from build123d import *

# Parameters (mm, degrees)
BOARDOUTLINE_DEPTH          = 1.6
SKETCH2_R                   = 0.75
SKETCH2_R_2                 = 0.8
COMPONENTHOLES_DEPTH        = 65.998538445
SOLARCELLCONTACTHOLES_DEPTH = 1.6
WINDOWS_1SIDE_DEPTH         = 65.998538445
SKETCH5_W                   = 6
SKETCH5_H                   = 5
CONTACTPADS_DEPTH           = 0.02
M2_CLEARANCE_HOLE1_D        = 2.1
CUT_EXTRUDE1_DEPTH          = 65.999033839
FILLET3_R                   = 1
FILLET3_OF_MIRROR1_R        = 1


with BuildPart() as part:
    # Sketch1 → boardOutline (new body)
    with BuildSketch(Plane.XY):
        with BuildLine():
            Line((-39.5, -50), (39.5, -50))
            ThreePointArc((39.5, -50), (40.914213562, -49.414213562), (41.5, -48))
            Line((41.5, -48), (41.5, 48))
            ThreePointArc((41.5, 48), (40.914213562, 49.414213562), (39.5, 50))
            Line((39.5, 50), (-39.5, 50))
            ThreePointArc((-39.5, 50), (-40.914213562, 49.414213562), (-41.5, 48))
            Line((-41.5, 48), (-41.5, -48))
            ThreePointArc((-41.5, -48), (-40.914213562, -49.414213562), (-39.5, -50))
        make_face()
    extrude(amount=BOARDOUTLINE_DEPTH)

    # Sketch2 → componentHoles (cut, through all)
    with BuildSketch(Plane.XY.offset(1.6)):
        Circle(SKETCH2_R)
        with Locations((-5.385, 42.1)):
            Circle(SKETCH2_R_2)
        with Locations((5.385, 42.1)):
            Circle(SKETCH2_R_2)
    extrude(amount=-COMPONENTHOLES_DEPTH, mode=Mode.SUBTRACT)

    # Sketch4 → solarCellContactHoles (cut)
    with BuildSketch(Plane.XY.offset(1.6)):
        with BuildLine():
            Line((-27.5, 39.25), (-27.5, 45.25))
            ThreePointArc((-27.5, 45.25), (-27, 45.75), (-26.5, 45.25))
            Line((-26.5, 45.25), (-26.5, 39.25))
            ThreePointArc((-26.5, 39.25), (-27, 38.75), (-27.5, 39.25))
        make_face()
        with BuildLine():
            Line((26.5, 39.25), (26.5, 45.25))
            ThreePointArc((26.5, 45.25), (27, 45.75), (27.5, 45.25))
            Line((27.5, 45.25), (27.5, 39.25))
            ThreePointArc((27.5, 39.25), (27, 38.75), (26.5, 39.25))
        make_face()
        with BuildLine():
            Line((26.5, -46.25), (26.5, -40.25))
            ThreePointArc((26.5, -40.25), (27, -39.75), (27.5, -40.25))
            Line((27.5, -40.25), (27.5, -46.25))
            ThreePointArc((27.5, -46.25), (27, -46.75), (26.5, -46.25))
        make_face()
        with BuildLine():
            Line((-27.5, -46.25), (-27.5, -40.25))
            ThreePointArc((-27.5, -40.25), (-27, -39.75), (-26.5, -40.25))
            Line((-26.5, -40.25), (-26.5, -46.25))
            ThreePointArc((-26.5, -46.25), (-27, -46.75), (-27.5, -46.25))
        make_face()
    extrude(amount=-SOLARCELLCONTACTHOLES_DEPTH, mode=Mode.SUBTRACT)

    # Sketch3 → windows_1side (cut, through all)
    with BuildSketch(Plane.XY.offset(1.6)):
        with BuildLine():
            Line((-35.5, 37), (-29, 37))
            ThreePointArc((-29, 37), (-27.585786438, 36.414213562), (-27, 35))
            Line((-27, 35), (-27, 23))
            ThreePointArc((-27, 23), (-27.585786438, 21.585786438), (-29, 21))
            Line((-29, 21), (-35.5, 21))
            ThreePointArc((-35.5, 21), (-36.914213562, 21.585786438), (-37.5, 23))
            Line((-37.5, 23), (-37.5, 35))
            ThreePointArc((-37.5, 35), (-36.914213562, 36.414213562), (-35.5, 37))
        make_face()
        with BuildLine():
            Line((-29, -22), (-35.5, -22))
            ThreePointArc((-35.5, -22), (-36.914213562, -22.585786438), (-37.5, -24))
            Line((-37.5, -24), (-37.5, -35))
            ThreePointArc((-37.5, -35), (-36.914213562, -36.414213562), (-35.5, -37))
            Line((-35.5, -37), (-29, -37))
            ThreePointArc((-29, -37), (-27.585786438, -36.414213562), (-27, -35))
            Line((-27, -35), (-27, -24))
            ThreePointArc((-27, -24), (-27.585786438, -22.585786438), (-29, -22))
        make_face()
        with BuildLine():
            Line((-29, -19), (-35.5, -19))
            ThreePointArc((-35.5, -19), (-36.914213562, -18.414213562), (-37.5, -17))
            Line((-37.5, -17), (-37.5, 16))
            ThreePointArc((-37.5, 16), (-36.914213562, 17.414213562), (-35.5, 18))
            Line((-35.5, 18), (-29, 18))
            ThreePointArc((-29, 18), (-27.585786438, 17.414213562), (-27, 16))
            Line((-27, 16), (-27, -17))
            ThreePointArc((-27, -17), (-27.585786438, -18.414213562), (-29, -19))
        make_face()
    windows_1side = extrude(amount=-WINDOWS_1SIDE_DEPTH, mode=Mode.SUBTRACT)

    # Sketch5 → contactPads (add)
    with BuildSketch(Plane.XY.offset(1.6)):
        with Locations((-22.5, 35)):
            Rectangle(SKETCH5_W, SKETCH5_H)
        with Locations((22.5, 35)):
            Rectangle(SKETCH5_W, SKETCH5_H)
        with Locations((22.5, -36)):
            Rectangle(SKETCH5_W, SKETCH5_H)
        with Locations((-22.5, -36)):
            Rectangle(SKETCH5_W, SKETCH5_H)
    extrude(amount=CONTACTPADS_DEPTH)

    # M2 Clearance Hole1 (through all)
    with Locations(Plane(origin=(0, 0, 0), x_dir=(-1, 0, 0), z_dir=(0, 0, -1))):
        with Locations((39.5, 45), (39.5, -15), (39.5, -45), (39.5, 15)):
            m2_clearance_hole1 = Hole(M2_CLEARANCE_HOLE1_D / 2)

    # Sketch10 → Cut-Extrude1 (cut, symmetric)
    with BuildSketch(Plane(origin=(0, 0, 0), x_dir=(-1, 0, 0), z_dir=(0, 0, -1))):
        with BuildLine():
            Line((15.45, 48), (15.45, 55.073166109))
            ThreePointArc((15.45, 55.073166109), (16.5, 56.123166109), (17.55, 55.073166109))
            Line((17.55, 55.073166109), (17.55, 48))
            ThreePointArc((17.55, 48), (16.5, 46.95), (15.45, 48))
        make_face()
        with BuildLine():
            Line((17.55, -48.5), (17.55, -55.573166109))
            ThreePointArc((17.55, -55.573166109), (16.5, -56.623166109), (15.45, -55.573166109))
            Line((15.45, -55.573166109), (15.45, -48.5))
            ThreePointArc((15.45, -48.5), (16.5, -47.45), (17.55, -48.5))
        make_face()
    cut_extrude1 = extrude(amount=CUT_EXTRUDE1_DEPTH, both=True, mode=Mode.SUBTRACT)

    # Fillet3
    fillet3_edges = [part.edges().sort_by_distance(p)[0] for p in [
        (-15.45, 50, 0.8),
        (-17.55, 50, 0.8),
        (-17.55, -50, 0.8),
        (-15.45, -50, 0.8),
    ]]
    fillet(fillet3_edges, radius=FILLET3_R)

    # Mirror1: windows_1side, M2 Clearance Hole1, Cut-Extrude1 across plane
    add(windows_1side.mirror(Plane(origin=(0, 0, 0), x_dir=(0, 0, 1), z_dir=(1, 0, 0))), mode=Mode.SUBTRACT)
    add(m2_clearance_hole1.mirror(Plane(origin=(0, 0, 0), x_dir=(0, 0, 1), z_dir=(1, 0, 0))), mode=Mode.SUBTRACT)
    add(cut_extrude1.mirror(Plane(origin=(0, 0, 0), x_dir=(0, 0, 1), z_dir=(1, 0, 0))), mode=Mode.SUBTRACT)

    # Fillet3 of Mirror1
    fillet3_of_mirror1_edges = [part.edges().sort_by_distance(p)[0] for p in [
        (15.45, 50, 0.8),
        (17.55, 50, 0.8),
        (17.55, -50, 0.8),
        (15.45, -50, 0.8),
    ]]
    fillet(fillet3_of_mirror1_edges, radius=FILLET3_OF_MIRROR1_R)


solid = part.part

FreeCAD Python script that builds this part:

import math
import FreeCAD as App
import Part
import Sketcher
Q = App.Units.Quantity


def edges_at(feature, points):
    """Names of the edges that pass closest to the given points."""
    edges = feature.Shape.Edges
    near = lambda p: min(range(len(edges)), key=lambda i: edges[i].distToShape(Part.Vertex(*p))[0])
    return sorted({f"Edge{near(p) + 1}" for p in points})


def add_polygon(sketch, points):
    """Adds a closed chain of lines whose ends are joined by coincident constraints."""
    first, n = sketch.GeometryCount, len(points)
    for a, b in zip(points, points[1:] + points[:1]):
        sketch.addGeometry(Part.LineSegment(App.Vector(*a, 0), App.Vector(*b, 0)), False)
    for i in range(n):
        sketch.addConstraint(Sketcher.Constraint("Coincident", first + i, 2, first + (i + 1) % n, 1))

doc = App.newDocument("Part")
body = doc.addObject("PartDesign::Body", "Body")

sketch1 = doc.addObject("Sketcher::SketchObject", "Sketch")
body.addObject(sketch1)
sketch1.AttachmentSupport = (doc.XY_Plane, [""])
sketch1.MapMode = "FlatFace"
sketch1.addGeometry([
    Part.LineSegment(App.Vector(-39.5, -50, 0), App.Vector(39.5, -50, 0)),
    Part.ArcOfCircle(Part.Circle(App.Vector(39.5, -48, 0), App.Vector(0, 0, 1), 2), math.radians(-90), math.radians(0)),
    Part.LineSegment(App.Vector(41.5, -48, 0), App.Vector(41.5, 48, 0)),
    Part.ArcOfCircle(Part.Circle(App.Vector(39.5, 48, 0), App.Vector(0, 0, 1), 2), math.radians(0), math.radians(90)),
    Part.LineSegment(App.Vector(39.5, 50, 0), App.Vector(-39.5, 50, 0)),
    Part.ArcOfCircle(Part.Circle(App.Vector(-39.5, 48, 0), App.Vector(0, 0, 1), 2), math.radians(90), math.radians(180)),
    Part.LineSegment(App.Vector(-41.5, 48, 0), App.Vector(-41.5, -48, 0)),
    Part.ArcOfCircle(Part.Circle(App.Vector(-39.5, -48, 0), App.Vector(0, 0, 1), 2), math.radians(-180), math.radians(-90)),
], False)
sketch1.addConstraint([
    Sketcher.Constraint("Tangent", 0, 2, 1, 1),
    Sketcher.Constraint("Tangent", 1, 2, 2, 1),
    Sketcher.Constraint("Tangent", 2, 2, 3, 1),
    Sketcher.Constraint("Tangent", 3, 2, 4, 1),
    Sketcher.Constraint("Tangent", 4, 2, 5, 1),
    Sketcher.Constraint("Tangent", 5, 2, 6, 1),
    Sketcher.Constraint("Tangent", 6, 2, 7, 1),
    Sketcher.Constraint("Tangent", 7, 2, 0, 1),
    Sketcher.Constraint("Horizontal", 0),
    Sketcher.Constraint("Vertical", 2),
    Sketcher.Constraint("Horizontal", 4),
    Sketcher.Constraint("Vertical", 6),
    Sketcher.Constraint("Equal", 1, 3),
    Sketcher.Constraint("Equal", 3, 5),
    Sketcher.Constraint("Equal", 5, 7),
    Sketcher.Constraint("Symmetric", 1, 3, 5, 3, -1, 1),
    Sketcher.Constraint("Radius", 1, Q("2 mm")),
    Sketcher.Constraint("DistanceX", 0, 1, 0, 2, Q("79 mm")),
    Sketcher.Constraint("DistanceY", 2, 1, 2, 2, Q("96 mm")),
])
pad1 = doc.addObject("PartDesign::Pad", "Pad")
body.addObject(pad1)
pad1.Profile = sketch1
pad1.Length = 1.6

sketch2 = doc.addObject("Sketcher::SketchObject", "Sketch001")
body.addObject(sketch2)
sketch2.AttachmentSupport = (doc.XY_Plane, [""])
sketch2.MapMode = "FlatFace"
sketch2.AttachmentOffset = App.Placement(App.Vector(0, 0, 1.6), App.Rotation())
sketch2.addGeometry([
    Part.Circle(App.Vector(0, 0, 0), App.Vector(0, 0, 1), 0.75),
    Part.Circle(App.Vector(-5.385, 42.1, 0), App.Vector(0, 0, 1), 0.8),
    Part.Circle(App.Vector(5.385, 42.1, 0), App.Vector(0, 0, 1), 0.8),
], False)
sketch2.addConstraint([
    Sketcher.Constraint("Coincident", 0, 3, -1, 1),
    Sketcher.Constraint("Equal", 1, 2),
    Sketcher.Constraint("Symmetric", 1, 3, 2, 3, -2),
    Sketcher.Constraint("Diameter", 0, Q("1.5 mm")),
    Sketcher.Constraint("Diameter", 1, Q("1.6 mm")),
    Sketcher.Constraint("DistanceY", -1, 1, 1, 3, Q("42.1 mm")),
    Sketcher.Constraint("DistanceX", 1, 3, 2, 3, Q("10.77 mm")),
])
pocket1 = doc.addObject("PartDesign::Pocket", "Pocket")
body.addObject(pocket1)
pocket1.Profile = sketch2
pocket1.Type = "ThroughAll"

sketch3 = doc.addObject("Sketcher::SketchObject", "Sketch002")
body.addObject(sketch3)
sketch3.AttachmentSupport = (doc.XY_Plane, [""])
sketch3.MapMode = "FlatFace"
sketch3.AttachmentOffset = App.Placement(App.Vector(0, 0, 1.6), App.Rotation())
sketch3.addGeometry([
    Part.LineSegment(App.Vector(-27.5, 45.25, 0), App.Vector(-27.5, 39.25, 0)),
    Part.ArcOfCircle(Part.Circle(App.Vector(-27, 39.25, 0), App.Vector(0, 0, 1), 0.5), math.radians(180), math.radians(360)),
    Part.LineSegment(App.Vector(-26.5, 39.25, 0), App.Vector(-26.5, 45.25, 0)),
    Part.ArcOfCircle(Part.Circle(App.Vector(-27, 45.25, 0), App.Vector(0, 0, 1), 0.5), math.radians(0), math.radians(180)),
    Part.LineSegment(App.Vector(26.5, 45.25, 0), App.Vector(26.5, 39.25, 0)),
    Part.ArcOfCircle(Part.Circle(App.Vector(27, 39.25, 0), App.Vector(0, 0, 1), 0.5), math.radians(180), math.radians(360)),
    Part.LineSegment(App.Vector(27.5, 39.25, 0), App.Vector(27.5, 45.25, 0)),
    Part.ArcOfCircle(Part.Circle(App.Vector(27, 45.25, 0), App.Vector(0, 0, 1), 0.5), math.radians(0), math.radians(180)),
    Part.LineSegment(App.Vector(26.5, -40.25, 0), App.Vector(26.5, -46.25, 0)),
    Part.ArcOfCircle(Part.Circle(App.Vector(27, -46.25, 0), App.Vector(0, 0, 1), 0.5), math.radians(180), math.radians(360)),
    Part.LineSegment(App.Vector(27.5, -46.25, 0), App.Vector(27.5, -40.25, 0)),
    Part.ArcOfCircle(Part.Circle(App.Vector(27, -40.25, 0), App.Vector(0, 0, 1), 0.5), math.radians(0), math.radians(180)),
    Part.LineSegment(App.Vector(-27.5, -40.25, 0), App.Vector(-27.5, -46.25, 0)),
    Part.ArcOfCircle(Part.Circle(App.Vector(-27, -46.25, 0), App.Vector(0, 0, 1), 0.5), math.radians(180), math.radians(360)),
    Part.LineSegment(App.Vector(-26.5, -46.25, 0), App.Vector(-26.5, -40.25, 0)),
    Part.ArcOfCircle(Part.Circle(App.Vector(-27, -40.25, 0), App.Vector(0, 0, 1), 0.5), math.radians(0), math.radians(180)),
], False)
sketch3.addConstraint([
    Sketcher.Constraint("Tangent", 0, 2, 1, 1),
    Sketcher.Constraint("Tangent", 1, 2, 2, 1),
    Sketcher.Constraint("Tangent", 2, 2, 3, 1),
    Sketcher.Constraint("Tangent", 3, 2, 0, 1),
    Sketcher.Constraint("Tangent", 4, 2, 5, 1),
    Sketcher.Constraint("Tangent", 5, 2, 6, 1),
    Sketcher.Constraint("Tangent", 6, 2, 7, 1),
    Sketcher.Constraint("Tangent", 7, 2, 4, 1),
    Sketcher.Constraint("Tangent", 8, 2, 9, 1),
    Sketcher.Constraint("Tangent", 9, 2, 10, 1),
    Sketcher.Constraint("Tangent", 10, 2, 11, 1),
    Sketcher.Constraint("Tangent", 11, 2, 8, 1),
    Sketcher.Constraint("Tangent", 12, 2, 13, 1),
    Sketcher.Constraint("Tangent", 13, 2, 14, 1),
    Sketcher.Constraint("Tangent", 14, 2, 15, 1),
    Sketcher.Constraint("Tangent", 15, 2, 12, 1),
    Sketcher.Constraint("Vertical", 0),
    Sketcher.Constraint("Vertical", 2),
    Sketcher.Constraint("Vertical", 4),
    Sketcher.Constraint("Vertical", 6),
    Sketcher.Constraint("Vertical", 8),
    Sketcher.Constraint("Vertical", 10),
    Sketcher.Constraint("Vertical", 12),
    Sketcher.Constraint("Vertical", 14),
    Sketcher.Constraint("Equal", 3, 5),
    Sketcher.Constraint("Equal", 7, 9),
    Sketcher.Constraint("Equal", 11, 13),
    Sketcher.Constraint("Symmetric", 1, 3, 5, 3, -2),
    Sketcher.Constraint("Symmetric", 9, 3, 13, 3, -2),
    Sketcher.Constraint("Horizontal", 3, 3, 7, 3),
    Sketcher.Constraint("Horizontal", 11, 3, 15, 3),
    Sketcher.Constraint("Vertical", 7, 3, 9, 3),
    Sketcher.Constraint("Equal", 6, 8),
    Sketcher.Constraint("Radius", 1, Q("0.5 mm")),
    Sketcher.Constraint("DistanceY", 0, 2, 0, 1, Q("6 mm")),
    Sketcher.Constraint("DistanceX", 1, 3, -1, 1, Q("27 mm")),
    Sketcher.Constraint("DistanceY", 9, 3, 5, 3, Q("85.5 mm")),
    Sketcher.Constraint("DistanceY", -1, 1, 1, 3, Q("39.25 mm")),
])
pocket2 = doc.addObject("PartDesign::Pocket", "Pocket001")
body.addObject(pocket2)
pocket2.Profile = sketch3
pocket2.Length = 1.6

sketch4 = doc.addObject("Sketcher::SketchObject", "Sketch003")
body.addObject(sketch4)
sketch4.AttachmentSupport = (doc.XY_Plane, [""])
sketch4.MapMode = "FlatFace"
sketch4.AttachmentOffset = App.Placement(App.Vector(0, 0, 1.6), App.Rotation())
sketch4.addGeometry([
    Part.LineSegment(App.Vector(-29, 37, 0), App.Vector(-35.5, 37, 0)),
    Part.ArcOfCircle(Part.Circle(App.Vector(-35.5, 35, 0), App.Vector(0, 0, 1), 2), math.radians(90), math.radians(180)),
    Part.LineSegment(App.Vector(-37.5, 35, 0), App.Vector(-37.5, 23, 0)),
    Part.ArcOfCircle(Part.Circle(App.Vector(-35.5, 23, 0), App.Vector(0, 0, 1), 2), math.radians(-180), math.radians(-90)),
    Part.LineSegment(App.Vector(-35.5, 21, 0), App.Vector(-29, 21, 0)),
    Part.ArcOfCircle(Part.Circle(App.Vector(-29, 23, 0), App.Vector(0, 0, 1), 2), math.radians(-90), math.radians(0)),
    Part.LineSegment(App.Vector(-27, 23, 0), App.Vector(-27, 35, 0)),
    Part.ArcOfCircle(Part.Circle(App.Vector(-29, 35, 0), App.Vector(0, 0, 1), 2), math.radians(0), math.radians(90)),
    Part.LineSegment(App.Vector(-29, -22, 0), App.Vector(-35.5, -22, 0)),
    Part.ArcOfCircle(Part.Circle(App.Vector(-35.5, -24, 0), App.Vector(0, 0, 1), 2), math.radians(90), math.radians(180)),
    Part.LineSegment(App.Vector(-37.5, -24, 0), App.Vector(-37.5, -35, 0)),
    Part.ArcOfCircle(Part.Circle(App.Vector(-35.5, -35, 0), App.Vector(0, 0, 1), 2), math.radians(-180), math.radians(-90)),
    Part.LineSegment(App.Vector(-35.5, -37, 0), App.Vector(-29, -37, 0)),
    Part.ArcOfCircle(Part.Circle(App.Vector(-29, -35, 0), App.Vector(0, 0, 1), 2), math.radians(-90), math.radians(0)),
    Part.LineSegment(App.Vector(-27, -35, 0), App.Vector(-27, -24, 0)),
    Part.ArcOfCircle(Part.Circle(App.Vector(-29, -24, 0), App.Vector(0, 0, 1), 2), math.radians(0), math.radians(90)),
    Part.LineSegment(App.Vector(-35.5, -19, 0), App.Vector(-29, -19, 0)),
    Part.ArcOfCircle(Part.Circle(App.Vector(-29, -17, 0), App.Vector(0, 0, 1), 2), math.radians(-90), math.radians(0)),
    Part.LineSegment(App.Vector(-27, -17, 0), App.Vector(-27, 16, 0)),
    Part.ArcOfCircle(Part.Circle(App.Vector(-29, 16, 0), App.Vector(0, 0, 1), 2), math.radians(0), math.radians(90)),
    Part.LineSegment(App.Vector(-29, 18, 0), App.Vector(-35.5, 18, 0)),
    Part.ArcOfCircle(Part.Circle(App.Vector(-35.5, 16, 0), App.Vector(0, 0, 1), 2), math.radians(90), math.radians(180)),
    Part.LineSegment(App.Vector(-37.5, 16, 0), App.Vector(-37.5, -17, 0)),
    Part.ArcOfCircle(Part.Circle(App.Vector(-35.5, -17, 0), App.Vector(0, 0, 1), 2), math.radians(-180), math.radians(-90)),
], False)
sketch4.addConstraint([
    Sketcher.Constraint("Tangent", 0, 2, 1, 1),
    Sketcher.Constraint("Tangent", 1, 2, 2, 1),
    Sketcher.Constraint("Tangent", 2, 2, 3, 1),
    Sketcher.Constraint("Tangent", 3, 2, 4, 1),
    Sketcher.Constraint("Tangent", 4, 2, 5, 1),
    Sketcher.Constraint("Tangent", 5, 2, 6, 1),
    Sketcher.Constraint("Tangent", 6, 2, 7, 1),
    Sketcher.Constraint("Tangent", 7, 2, 0, 1),
    Sketcher.Constraint("Tangent", 8, 2, 9, 1),
    Sketcher.Constraint("Tangent", 9, 2, 10, 1),
    Sketcher.Constraint("Tangent", 10, 2, 11, 1),
    Sketcher.Constraint("Tangent", 11, 2, 12, 1),
    Sketcher.Constraint("Tangent", 12, 2, 13, 1),
    Sketcher.Constraint("Tangent", 13, 2, 14, 1),
    Sketcher.Constraint("Tangent", 14, 2, 15, 1),
    Sketcher.Constraint("Tangent", 15, 2, 8, 1),
    Sketcher.Constraint("Tangent", 16, 2, 17, 1),
    Sketcher.Constraint("Tangent", 17, 2, 18, 1),
    Sketcher.Constraint("Tangent", 18, 2, 19, 1),
    Sketcher.Constraint("Tangent", 19, 2, 20, 1),
    Sketcher.Constraint("Tangent", 20, 2, 21, 1),
    Sketcher.Constraint("Tangent", 21, 2, 22, 1),
    Sketcher.Constraint("Tangent", 22, 2, 23, 1),
    Sketcher.Constraint("Tangent", 23, 2, 16, 1),
    Sketcher.Constraint("Horizontal", 0),
    Sketcher.Constraint("Vertical", 2),
    Sketcher.Constraint("Horizontal", 4),
    Sketcher.Constraint("Vertical", 6),
    Sketcher.Constraint("Horizontal", 8),
    Sketcher.Constraint("Vertical", 10),
    Sketcher.Constraint("Horizontal", 12),
    Sketcher.Constraint("Vertical", 14),
    Sketcher.Constraint("Horizontal", 16),
    Sketcher.Constraint("Vertical", 18),
    Sketcher.Constraint("Horizontal", 20),
    Sketcher.Constraint("Vertical", 22),
    Sketcher.Constraint("Equal", 1, 3),
    Sketcher.Constraint("Equal", 3, 5),
    Sketcher.Constraint("Equal", 5, 7),
    Sketcher.Constraint("Equal", 7, 9),
    Sketcher.Constraint("Equal", 9, 11),
    Sketcher.Constraint("Equal", 11, 13),
    Sketcher.Constraint("Equal", 13, 15),
    Sketcher.Constraint("Equal", 15, 17),
    Sketcher.Constraint("Equal", 17, 19),
    Sketcher.Constraint("Equal", 19, 21),
    Sketcher.Constraint("Equal", 21, 23),
    Sketcher.Constraint("Symmetric", 1, 3, 11, 3, -1),
    Sketcher.Constraint("Vertical", 7, 3, 13, 3),
    Sketcher.Constraint("Vertical", 15, 3, 17, 3),
    Sketcher.Constraint("Vertical", 11, 3, 21, 3),
    Sketcher.Constraint("Radius", 1, Q("2 mm")),
    Sketcher.Constraint("DistanceY", 2, 2, 2, 1, Q("12 mm")),
    Sketcher.Constraint("DistanceY", 10, 2, 10, 1, Q("11 mm")),
    Sketcher.Constraint("DistanceY", 18, 1, 18, 2, Q("33 mm")),
    Sketcher.Constraint("DistanceX", 0, 2, 0, 1, Q("6.5 mm")),
    Sketcher.Constraint("DistanceY", -1, 1, 1, 3, Q("35 mm")),
    Sketcher.Constraint("DistanceX", 5, 3, -1, 1, Q("29 mm")),
    Sketcher.Constraint("DistanceY", 17, 3, -1, 1, Q("17 mm")),
])
pocket3 = doc.addObject("PartDesign::Pocket", "Pocket002")
body.addObject(pocket3)
pocket3.Profile = sketch4
pocket3.Type = "ThroughAll"

sketch5 = doc.addObject("Sketcher::SketchObject", "Sketch004")
body.addObject(sketch5)
sketch5.AttachmentSupport = (doc.XY_Plane, [""])
sketch5.MapMode = "FlatFace"
sketch5.AttachmentOffset = App.Placement(App.Vector(0, 0, 1.6), App.Rotation())
add_polygon(sketch5, [(-25.5, 37.5), (-25.5, 32.5), (-19.5, 32.5), (-19.5, 37.5)])
add_polygon(sketch5, [(19.5, 37.5), (19.5, 32.5), (25.5, 32.5), (25.5, 37.5)])
add_polygon(sketch5, [(19.5, -33.5), (19.5, -38.5), (25.5, -38.5), (25.5, -33.5)])
add_polygon(sketch5, [(-25.5, -33.5), (-25.5, -38.5), (-19.5, -38.5), (-19.5, -33.5)])
sketch5.addConstraint([
    Sketcher.Constraint("Vertical", 0),
    Sketcher.Constraint("Horizontal", 1),
    Sketcher.Constraint("Vertical", 2),
    Sketcher.Constraint("Horizontal", 3),
    Sketcher.Constraint("Vertical", 4),
    Sketcher.Constraint("Horizontal", 5),
    Sketcher.Constraint("Vertical", 6),
    Sketcher.Constraint("Horizontal", 7),
    Sketcher.Constraint("Vertical", 8),
    Sketcher.Constraint("Horizontal", 9),
    Sketcher.Constraint("Vertical", 10),
    Sketcher.Constraint("Horizontal", 11),
    Sketcher.Constraint("Vertical", 12),
    Sketcher.Constraint("Horizontal", 13),
    Sketcher.Constraint("Vertical", 14),
    Sketcher.Constraint("Horizontal", 15),
    Sketcher.Constraint("Symmetric", 1, 2, 4, 2, -2),
    Sketcher.Constraint("Symmetric", 3, 2, 6, 2, -2),
    Sketcher.Constraint("Symmetric", 9, 2, 12, 2, -2),
    Sketcher.Constraint("Symmetric", 11, 2, 14, 2, -2),
    Sketcher.Constraint("Vertical", 7, 2, 8, 2),
    Sketcher.Constraint("Vertical", 6, 2, 9, 2),
    Sketcher.Constraint("Equal", 6, 8),
    Sketcher.Constraint("DistanceX", 1, 1, 1, 2, Q("6 mm")),
    Sketcher.Constraint("DistanceY", 0, 2, 0, 1, Q("5 mm")),
    Sketcher.Constraint("DistanceX", 1, 2, 4, 2, Q("39 mm")),
    Sketcher.Constraint("DistanceY", 8, 2, 4, 2, Q("71 mm")),
    Sketcher.Constraint("DistanceY", -1, 1, 0, 2, Q("32.5 mm")),
])
pad2 = doc.addObject("PartDesign::Pad", "Pad001")
body.addObject(pad2)
pad2.Profile = sketch5
pad2.Length = 0.02

sketch6 = doc.addObject("Sketcher::SketchObject", "Sketch005")
body.addObject(sketch6)
sketch6.AttachmentSupport = (doc.XY_Plane, [""])
sketch6.MapMode = "FlatFace"
sketch6.addGeometry([
    Part.Circle(App.Vector(-39.5, 45, 0), App.Vector(0, 0, 1), 1.05),
    Part.Circle(App.Vector(-39.5, -15, 0), App.Vector(0, 0, 1), 1.05),
    Part.Circle(App.Vector(-39.5, -45, 0), App.Vector(0, 0, 1), 1.05),
    Part.Circle(App.Vector(-39.5, 15, 0), App.Vector(0, 0, 1), 1.05),
], False)
sketch6.addConstraint([
    Sketcher.Constraint("Equal", 0, 1),
    Sketcher.Constraint("Equal", 1, 2),
    Sketcher.Constraint("Equal", 2, 3),
    Sketcher.Constraint("Symmetric", 0, 3, 2, 3, -1),
    Sketcher.Constraint("Symmetric", 1, 3, 3, 3, -1),
    Sketcher.Constraint("Vertical", 0, 3, 1, 3),
    Sketcher.Constraint("Diameter", 0, Q("2.1 mm")),
    Sketcher.Constraint("DistanceY", -1, 1, 0, 3, Q("45 mm")),
    Sketcher.Constraint("DistanceY", 1, 3, -1, 1, Q("15 mm")),
    Sketcher.Constraint("DistanceX", 0, 3, -1, 1, Q("39.5 mm")),
])
doc.recompute()
hole = doc.addObject("PartDesign::Hole", "Hole")
body.addObject(hole)
hole.Profile = sketch6
hole.ThreadType = "None"
hole.Diameter = 2.1
hole.DepthType = "ThroughAll"
hole.Reversed = True

sketch7 = doc.addObject("Sketcher::SketchObject", "Sketch006")
body.addObject(sketch7)
sketch7.AttachmentSupport = (doc.XY_Plane, [""])
sketch7.MapMode = "FlatFace"
sketch7.addGeometry([
    Part.LineSegment(App.Vector(-15.45, 55.073166, 0), App.Vector(-15.45, 48, 0)),
    Part.ArcOfCircle(Part.Circle(App.Vector(-16.5, 48, 0), App.Vector(0, 0, 1), 1.05), math.radians(180), math.radians(360)),
    Part.LineSegment(App.Vector(-17.55, 48, 0), App.Vector(-17.55, 55.073166, 0)),
    Part.ArcOfCircle(Part.Circle(App.Vector(-16.5, 55.073166, 0), App.Vector(0, 0, 1), 1.05), math.radians(0), math.radians(180)),
    Part.LineSegment(App.Vector(-17.55, -55.573166, 0), App.Vector(-17.55, -48.5, 0)),
    Part.ArcOfCircle(Part.Circle(App.Vector(-16.5, -48.5, 0), App.Vector(0, 0, 1), 1.05), math.radians(0), math.radians(180)),
    Part.LineSegment(App.Vector(-15.45, -48.5, 0), App.Vector(-15.45, -55.573166, 0)),
    Part.ArcOfCircle(Part.Circle(App.Vector(-16.5, -55.573166, 0), App.Vector(0, 0, 1), 1.05), math.radians(180), math.radians(360)),
], False)
sketch7.addConstraint([
    Sketcher.Constraint("Tangent", 0, 2, 1, 2),
    Sketcher.Constraint("Tangent", 1, 1, 2, 1),
    Sketcher.Constraint("Tangent", 2, 2, 3, 2),
    Sketcher.Constraint("Tangent", 3, 1, 0, 1),
    Sketcher.Constraint("Tangent", 4, 2, 5, 2),
    Sketcher.Constraint("Tangent", 5, 1, 6, 1),
    Sketcher.Constraint("Tangent", 6, 2, 7, 2),
    Sketcher.Constraint("Tangent", 7, 1, 4, 1),
    Sketcher.Constraint("Vertical", 0),
    Sketcher.Constraint("Vertical", 2),
    Sketcher.Constraint("Vertical", 4),
    Sketcher.Constraint("Vertical", 6),
    Sketcher.Constraint("Equal", 3, 5),
    Sketcher.Constraint("Vertical", 3, 3, 5, 3),
    Sketcher.Constraint("Equal", 2, 4),
    Sketcher.Constraint("Radius", 1, Q("1.05 mm")),
    Sketcher.Constraint("DistanceY", -1, 1, 1, 3, Q("48 mm")),
    Sketcher.Constraint("DistanceX", 1, 3, -1, 1, Q("16.5 mm")),
    Sketcher.Constraint("DistanceY", 5, 3, -1, 1, Q("48.5 mm")),
    Sketcher.Constraint("DistanceY", 0, 2, 0, 1, Q("7.073166 mm")),
])
pocket4 = doc.addObject("PartDesign::Pocket", "Pocket003")
body.addObject(pocket4)
pocket4.Profile = sketch7
pocket4.Length = 131.998068
pocket4.Midplane = True
doc.recompute()

fillet = doc.addObject("PartDesign::Fillet", "Fillet")
body.addObject(fillet)
fillet.Base = (pocket4, edges_at(pocket4, [
    (-15.45, 50, 0.8),
    (-17.55, 50, 0.8),
    (-17.55, -50, 0.8),
    (-15.45, -50, 0.8),
]))
fillet.Radius = 1
doc.recompute()

mirrored = doc.addObject("PartDesign::Mirrored", "Mirrored")
body.addObject(mirrored)
mirrored.Originals = [pocket3, hole, pocket4]
mirrored.MirrorPlane = (doc.YZ_Plane, [""])
body.Tip = mirrored
doc.recompute()

fillet2 = doc.addObject("PartDesign::Fillet", "Fillet001")
body.addObject(fillet2)
fillet2.Base = (mirrored, edges_at(mirrored, [
    (15.45, 50, 0.8),
    (17.55, 50, 0.8),
    (17.55, -50, 0.8),
    (15.45, -50, 0.8),
]))
fillet2.Radius = 1

doc.recompute()
